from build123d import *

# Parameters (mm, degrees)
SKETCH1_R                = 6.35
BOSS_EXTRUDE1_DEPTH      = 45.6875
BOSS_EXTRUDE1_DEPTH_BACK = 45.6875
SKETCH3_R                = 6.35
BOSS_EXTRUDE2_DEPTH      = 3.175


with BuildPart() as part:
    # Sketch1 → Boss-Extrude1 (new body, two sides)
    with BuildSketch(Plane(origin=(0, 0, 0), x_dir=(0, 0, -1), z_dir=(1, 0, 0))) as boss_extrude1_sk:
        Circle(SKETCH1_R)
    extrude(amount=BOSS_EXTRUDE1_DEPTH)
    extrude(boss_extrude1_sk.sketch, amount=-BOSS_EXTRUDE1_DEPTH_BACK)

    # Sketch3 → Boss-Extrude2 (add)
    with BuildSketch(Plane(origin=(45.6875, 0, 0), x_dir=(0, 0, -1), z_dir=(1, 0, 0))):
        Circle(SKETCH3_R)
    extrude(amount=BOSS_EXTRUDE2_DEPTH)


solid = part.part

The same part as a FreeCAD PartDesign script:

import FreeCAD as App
import Part
import Sketcher
from FreeCAD import Vector
Q = App.Units.Quantity

doc = App.newDocument("Part")
body = doc.addObject("PartDesign::Body", "Body")

# Sketch on YZ plane
sketch1 = body.newObject("Sketcher::SketchObject", "Sketch")
sketch1.AttachmentSupport = (doc.getObject("YZ_Plane"), [""])
sketch1.MapMode = "FlatFace"
sketch1.addGeometry(Part.Circle(Vector(0, 0, 0), Vector(0, 0, 1), 6.35), False)
sketch1.addConstraint([
    Sketcher.Constraint("Coincident", 0, 3, -1, 1),
    Sketcher.Constraint("Diameter", 0, Q("0.5 in")),
])
pad1 = body.newObject("PartDesign::Pad", "Pad")
pad1.Profile = sketch1
pad1.Type = "TwoLengths"
pad1.Length = 45.6875
pad1.Length2 = 45.6875

# Sketch on YZ plane
sketch2 = body.newObject("Sketcher::SketchObject", "Sketch001")
sketch2.AttachmentSupport = (doc.getObject("YZ_Plane"), [""])
sketch2.MapMode = "FlatFace"
sketch2.AttachmentOffset = App.Placement(Vector(0, 0, 45.6875), App.Rotation())
sketch2.addGeometry(Part.Circle(Vector(0, 0, 0), Vector(0, 0, 1), 6.35), False)
sketch2.addConstraint([
    Sketcher.Constraint("Coincident", 0, 3, -1, 1),
    Sketcher.Constraint("Diameter", 0, Q("0.5 in")),
])
pad2 = body.newObject("PartDesign::Pad", "Pad001")
pad2.Profile = sketch2
pad2.Length = Q("0.125 in")

doc.recompute()
